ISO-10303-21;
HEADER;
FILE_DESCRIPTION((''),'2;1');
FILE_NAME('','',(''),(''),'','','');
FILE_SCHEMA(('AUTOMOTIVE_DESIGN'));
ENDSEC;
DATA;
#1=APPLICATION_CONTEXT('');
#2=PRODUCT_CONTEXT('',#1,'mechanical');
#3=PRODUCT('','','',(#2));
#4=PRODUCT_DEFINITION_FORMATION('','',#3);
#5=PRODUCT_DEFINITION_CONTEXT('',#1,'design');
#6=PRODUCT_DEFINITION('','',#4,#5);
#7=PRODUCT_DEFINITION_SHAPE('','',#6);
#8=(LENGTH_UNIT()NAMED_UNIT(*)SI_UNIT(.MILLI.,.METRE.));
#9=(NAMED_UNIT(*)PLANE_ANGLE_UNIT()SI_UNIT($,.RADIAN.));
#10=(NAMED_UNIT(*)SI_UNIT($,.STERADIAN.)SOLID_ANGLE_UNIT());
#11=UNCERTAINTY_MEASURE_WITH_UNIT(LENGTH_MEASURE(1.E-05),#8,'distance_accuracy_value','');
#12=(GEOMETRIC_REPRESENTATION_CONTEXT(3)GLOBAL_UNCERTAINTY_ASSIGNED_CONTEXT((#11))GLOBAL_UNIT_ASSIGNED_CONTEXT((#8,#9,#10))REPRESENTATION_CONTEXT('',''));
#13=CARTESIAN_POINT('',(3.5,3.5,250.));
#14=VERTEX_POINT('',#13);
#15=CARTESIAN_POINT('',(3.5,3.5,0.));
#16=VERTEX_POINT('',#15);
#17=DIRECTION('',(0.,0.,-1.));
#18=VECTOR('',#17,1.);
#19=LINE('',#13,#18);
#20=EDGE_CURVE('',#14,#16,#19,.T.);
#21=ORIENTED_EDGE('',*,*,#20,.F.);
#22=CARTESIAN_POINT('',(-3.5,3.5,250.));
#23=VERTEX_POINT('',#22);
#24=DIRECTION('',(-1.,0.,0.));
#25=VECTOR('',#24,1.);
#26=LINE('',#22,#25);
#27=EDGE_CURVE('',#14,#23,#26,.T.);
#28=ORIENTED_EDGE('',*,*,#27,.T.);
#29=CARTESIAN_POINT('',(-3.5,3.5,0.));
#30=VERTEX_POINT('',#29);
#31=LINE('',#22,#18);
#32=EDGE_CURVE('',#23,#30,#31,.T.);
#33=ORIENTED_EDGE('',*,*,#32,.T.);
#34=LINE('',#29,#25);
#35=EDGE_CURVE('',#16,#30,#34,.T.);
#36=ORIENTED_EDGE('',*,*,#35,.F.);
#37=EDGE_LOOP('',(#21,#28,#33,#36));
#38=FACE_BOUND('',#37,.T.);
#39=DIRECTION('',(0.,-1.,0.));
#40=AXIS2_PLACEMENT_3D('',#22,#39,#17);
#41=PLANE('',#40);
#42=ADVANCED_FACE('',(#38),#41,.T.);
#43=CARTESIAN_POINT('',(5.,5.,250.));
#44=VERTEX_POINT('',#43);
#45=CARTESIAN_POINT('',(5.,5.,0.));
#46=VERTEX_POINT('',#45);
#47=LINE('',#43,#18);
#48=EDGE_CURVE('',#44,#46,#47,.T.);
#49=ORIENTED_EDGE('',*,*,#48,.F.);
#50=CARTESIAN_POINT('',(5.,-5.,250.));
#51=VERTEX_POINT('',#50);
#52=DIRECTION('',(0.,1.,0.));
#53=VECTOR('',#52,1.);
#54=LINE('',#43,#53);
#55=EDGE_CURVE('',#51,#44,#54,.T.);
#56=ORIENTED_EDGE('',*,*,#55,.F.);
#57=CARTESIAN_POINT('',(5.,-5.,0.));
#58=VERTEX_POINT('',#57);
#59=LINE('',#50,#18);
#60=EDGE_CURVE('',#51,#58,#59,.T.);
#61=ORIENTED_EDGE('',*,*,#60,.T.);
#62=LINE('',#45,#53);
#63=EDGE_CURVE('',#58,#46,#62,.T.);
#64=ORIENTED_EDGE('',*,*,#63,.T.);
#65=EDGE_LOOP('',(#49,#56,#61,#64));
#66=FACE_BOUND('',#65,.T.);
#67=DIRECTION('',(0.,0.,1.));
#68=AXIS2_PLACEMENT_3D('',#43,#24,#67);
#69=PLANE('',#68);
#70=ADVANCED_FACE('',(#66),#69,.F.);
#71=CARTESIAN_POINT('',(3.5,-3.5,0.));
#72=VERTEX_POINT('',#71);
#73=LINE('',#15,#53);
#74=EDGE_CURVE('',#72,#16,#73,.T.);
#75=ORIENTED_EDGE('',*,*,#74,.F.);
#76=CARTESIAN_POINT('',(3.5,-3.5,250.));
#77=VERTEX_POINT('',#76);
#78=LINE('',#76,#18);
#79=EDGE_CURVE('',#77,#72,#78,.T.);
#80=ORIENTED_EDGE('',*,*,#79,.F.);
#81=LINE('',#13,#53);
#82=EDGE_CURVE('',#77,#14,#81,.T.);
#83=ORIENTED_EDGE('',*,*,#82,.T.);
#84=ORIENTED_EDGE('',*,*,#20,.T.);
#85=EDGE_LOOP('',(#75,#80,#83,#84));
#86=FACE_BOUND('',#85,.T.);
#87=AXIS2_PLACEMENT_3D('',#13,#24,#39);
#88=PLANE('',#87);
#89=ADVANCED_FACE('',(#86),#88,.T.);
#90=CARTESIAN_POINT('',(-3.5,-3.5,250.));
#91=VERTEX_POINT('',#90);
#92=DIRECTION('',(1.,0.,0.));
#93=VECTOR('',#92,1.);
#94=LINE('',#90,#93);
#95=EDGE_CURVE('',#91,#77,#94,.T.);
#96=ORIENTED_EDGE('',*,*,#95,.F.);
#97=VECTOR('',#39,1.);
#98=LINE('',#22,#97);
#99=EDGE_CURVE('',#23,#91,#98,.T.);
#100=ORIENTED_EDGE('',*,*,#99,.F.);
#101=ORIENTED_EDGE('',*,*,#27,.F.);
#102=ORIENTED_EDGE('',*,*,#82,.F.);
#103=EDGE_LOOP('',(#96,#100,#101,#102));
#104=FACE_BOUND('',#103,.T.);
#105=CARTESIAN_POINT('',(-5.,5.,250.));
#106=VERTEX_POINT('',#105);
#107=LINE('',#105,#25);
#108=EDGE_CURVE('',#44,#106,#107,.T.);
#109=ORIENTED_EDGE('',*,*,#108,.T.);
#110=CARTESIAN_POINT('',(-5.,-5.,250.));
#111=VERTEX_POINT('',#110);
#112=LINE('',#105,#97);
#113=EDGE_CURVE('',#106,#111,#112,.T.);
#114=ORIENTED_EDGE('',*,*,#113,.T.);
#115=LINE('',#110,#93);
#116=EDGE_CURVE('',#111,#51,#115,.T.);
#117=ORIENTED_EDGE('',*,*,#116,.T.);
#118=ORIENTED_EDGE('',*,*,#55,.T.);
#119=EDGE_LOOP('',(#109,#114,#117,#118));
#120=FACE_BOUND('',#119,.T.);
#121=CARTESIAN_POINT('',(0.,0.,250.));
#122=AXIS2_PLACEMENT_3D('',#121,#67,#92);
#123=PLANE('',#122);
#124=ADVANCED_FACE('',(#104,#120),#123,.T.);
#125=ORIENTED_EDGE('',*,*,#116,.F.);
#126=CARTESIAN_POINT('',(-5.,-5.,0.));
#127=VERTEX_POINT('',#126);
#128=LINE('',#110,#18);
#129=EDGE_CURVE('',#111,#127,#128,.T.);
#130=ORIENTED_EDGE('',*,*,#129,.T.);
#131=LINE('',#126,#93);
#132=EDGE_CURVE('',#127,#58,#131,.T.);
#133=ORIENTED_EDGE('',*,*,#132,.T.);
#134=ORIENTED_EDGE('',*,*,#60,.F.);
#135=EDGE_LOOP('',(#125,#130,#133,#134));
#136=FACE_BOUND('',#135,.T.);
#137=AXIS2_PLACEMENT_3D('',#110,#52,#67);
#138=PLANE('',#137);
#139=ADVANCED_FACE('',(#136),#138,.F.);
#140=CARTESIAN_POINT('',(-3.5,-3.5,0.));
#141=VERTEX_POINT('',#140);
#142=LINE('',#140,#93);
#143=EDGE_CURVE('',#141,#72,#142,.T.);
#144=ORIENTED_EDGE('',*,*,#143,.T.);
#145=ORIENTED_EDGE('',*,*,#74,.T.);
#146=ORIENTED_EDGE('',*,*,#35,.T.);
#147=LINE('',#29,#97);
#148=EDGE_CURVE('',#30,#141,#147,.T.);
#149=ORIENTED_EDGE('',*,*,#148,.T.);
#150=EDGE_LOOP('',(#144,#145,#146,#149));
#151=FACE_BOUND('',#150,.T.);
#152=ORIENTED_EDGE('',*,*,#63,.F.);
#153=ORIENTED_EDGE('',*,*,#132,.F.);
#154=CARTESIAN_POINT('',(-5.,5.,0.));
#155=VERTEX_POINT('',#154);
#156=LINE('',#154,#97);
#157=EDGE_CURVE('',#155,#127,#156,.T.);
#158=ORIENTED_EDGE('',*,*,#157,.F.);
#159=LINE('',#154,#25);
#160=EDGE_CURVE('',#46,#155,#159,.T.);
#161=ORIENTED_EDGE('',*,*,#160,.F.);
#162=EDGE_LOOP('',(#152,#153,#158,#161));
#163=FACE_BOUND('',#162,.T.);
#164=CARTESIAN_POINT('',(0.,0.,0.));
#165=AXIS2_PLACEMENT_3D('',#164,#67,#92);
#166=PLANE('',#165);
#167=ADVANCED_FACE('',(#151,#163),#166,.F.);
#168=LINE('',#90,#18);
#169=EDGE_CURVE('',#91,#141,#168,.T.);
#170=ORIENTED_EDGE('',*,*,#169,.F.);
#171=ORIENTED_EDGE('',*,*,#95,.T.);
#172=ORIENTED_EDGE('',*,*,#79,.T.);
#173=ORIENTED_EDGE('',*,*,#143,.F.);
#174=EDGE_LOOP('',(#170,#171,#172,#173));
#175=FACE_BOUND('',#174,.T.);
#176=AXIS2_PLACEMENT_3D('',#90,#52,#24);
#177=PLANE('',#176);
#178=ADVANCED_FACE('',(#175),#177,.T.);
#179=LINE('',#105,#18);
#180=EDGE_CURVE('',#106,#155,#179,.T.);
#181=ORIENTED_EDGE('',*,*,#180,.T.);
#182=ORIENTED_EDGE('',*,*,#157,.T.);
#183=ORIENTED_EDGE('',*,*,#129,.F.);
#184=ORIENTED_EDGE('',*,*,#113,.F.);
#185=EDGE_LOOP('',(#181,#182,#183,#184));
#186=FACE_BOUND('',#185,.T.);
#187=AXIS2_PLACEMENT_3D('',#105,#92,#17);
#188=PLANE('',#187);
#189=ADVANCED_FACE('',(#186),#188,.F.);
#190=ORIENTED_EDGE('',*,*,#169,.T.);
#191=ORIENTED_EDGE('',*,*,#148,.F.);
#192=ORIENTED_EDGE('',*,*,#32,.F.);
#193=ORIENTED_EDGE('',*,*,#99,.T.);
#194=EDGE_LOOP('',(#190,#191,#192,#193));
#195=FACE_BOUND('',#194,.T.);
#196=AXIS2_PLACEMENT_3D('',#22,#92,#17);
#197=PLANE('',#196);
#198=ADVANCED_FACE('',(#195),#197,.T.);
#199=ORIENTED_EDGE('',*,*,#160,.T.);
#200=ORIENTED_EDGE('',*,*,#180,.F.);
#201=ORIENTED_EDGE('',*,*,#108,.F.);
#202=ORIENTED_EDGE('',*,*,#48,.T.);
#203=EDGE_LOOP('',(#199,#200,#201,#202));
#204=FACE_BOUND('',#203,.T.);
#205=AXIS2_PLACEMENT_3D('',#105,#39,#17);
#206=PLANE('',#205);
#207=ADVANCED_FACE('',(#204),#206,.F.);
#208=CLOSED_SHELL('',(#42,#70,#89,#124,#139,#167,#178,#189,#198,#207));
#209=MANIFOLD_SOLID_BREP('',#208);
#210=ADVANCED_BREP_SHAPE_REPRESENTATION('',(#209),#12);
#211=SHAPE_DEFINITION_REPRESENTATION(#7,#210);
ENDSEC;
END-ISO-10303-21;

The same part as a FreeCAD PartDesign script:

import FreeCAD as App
import Part
import Sketcher
from FreeCAD import Vector


def add_polygon(sketch, points):
    """Adds a closed chain of lines whose ends are joined by coincident constraints."""
    first, n = sketch.GeometryCount, len(points)
    for a, b in zip(points, points[1:] + points[:1]):
        sketch.addGeometry(Part.LineSegment(App.Vector(*a, 0), App.Vector(*b, 0)), False)
    for i in range(n):
        sketch.addConstraint(Sketcher.Constraint("Coincident", first + i, 2, first + (i + 1) % n, 1))

doc = App.newDocument("Part")
body = doc.addObject("PartDesign::Body", "Body")

# Sketch on XY plane
sketch1 = body.newObject("Sketcher::SketchObject", "Sketch")
sketch1.AttachmentSupport = (doc.getObject("XY_Plane"), [""])
sketch1.MapMode = "FlatFace"
add_polygon(sketch1, [(-5, 5), (-5, -5), (5, -5), (5, 5)])  # lines 0-3
add_polygon(sketch1, [(3.5, -3.5), (-3.5, -3.5), (-3.5, 3.5), (3.5, 3.5)])  # lines 4-7
sketch1.addConstraint(Sketcher.Constraint("Vertical", 0))
sketch1.addConstraint(Sketcher.Constraint("Horizontal", 1))
sketch1.addConstraint(Sketcher.Constraint("Vertical", 2))
sketch1.addConstraint(Sketcher.Constraint("Horizontal", 3))
sketch1.addConstraint(Sketcher.Constraint("Horizontal", 4))
sketch1.addConstraint(Sketcher.Constraint("Vertical", 5))
sketch1.addConstraint(Sketcher.Constraint("Horizontal", 6))
sketch1.addConstraint(Sketcher.Constraint("Vertical", 7))
sketch1.addConstraint(Sketcher.Constraint("Symmetric", 0, 2, 2, 2, -1, 1))
sketch1.addConstraint(Sketcher.Constraint("Symmetric", 4, 2, 6, 2, -1, 1))
sketch1.addConstraint(Sketcher.Constraint("Equal", 3, 0))
sketch1.addConstraint(Sketcher.Constraint("Equal", 6, 5))
sketch1.addConstraint(Sketcher.Constraint("DistanceX", 1, 1, 1, 2, 10.0))
sketch1.addConstraint(Sketcher.Constraint("DistanceX", 4, 2, 4, 1, 7.0))
pad1 = body.newObject("PartDesign::Pad", "Pad")
pad1.Profile = sketch1
pad1.Length = 250

doc.recompute()
